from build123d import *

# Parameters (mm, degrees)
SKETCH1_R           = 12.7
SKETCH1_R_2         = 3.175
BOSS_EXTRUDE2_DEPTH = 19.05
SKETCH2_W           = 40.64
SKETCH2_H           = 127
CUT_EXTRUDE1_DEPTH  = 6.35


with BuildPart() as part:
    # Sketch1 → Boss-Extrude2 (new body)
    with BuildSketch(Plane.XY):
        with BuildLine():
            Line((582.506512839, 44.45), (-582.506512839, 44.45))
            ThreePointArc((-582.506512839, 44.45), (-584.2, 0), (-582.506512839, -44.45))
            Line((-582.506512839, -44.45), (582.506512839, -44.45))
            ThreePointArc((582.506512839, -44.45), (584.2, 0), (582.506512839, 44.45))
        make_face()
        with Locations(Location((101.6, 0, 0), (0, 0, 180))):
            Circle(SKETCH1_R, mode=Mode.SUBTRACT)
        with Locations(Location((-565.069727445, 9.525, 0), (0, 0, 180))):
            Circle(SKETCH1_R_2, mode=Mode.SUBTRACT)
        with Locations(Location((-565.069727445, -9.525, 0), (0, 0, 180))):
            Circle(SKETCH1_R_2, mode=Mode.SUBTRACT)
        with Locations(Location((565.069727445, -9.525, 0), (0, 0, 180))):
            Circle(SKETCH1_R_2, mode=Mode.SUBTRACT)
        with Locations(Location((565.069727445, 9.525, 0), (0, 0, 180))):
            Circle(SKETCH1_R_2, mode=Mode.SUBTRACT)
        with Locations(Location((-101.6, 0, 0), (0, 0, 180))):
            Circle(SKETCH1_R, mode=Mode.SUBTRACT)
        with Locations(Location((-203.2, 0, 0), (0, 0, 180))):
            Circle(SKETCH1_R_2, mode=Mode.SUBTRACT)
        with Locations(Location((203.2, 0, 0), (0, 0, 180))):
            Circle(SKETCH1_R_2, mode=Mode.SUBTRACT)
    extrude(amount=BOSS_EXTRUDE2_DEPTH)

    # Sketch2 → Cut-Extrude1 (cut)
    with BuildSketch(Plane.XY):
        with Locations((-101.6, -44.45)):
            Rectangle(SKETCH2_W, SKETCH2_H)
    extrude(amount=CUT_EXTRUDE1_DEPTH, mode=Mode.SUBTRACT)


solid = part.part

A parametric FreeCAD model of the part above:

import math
import FreeCAD as App
import Part
import Sketcher
from FreeCAD import Vector
Q = App.Units.Quantity

doc = App.newDocument("Part")
body = doc.addObject("PartDesign::Body", "Body")

# Sketch on XY plane
sketch1 = body.newObject("Sketcher::SketchObject", "Sketch")
sketch1.AttachmentSupport = (doc.getObject("XY_Plane"), [""])
sketch1.MapMode = "FlatFace"
sketch1.addGeometry([
    Part.LineSegment(Vector(582.5, 44.5, 0), Vector(-582.5, 44.5, 0)),  # 0
    Part.ArcOfCircle(Part.Circle(Vector(0, 0, 0), Vector(0, 0, 1), 584.2), math.radians(175.64), math.radians(184.36)),  # 1
    Part.LineSegment(Vector(-582.5, -44.5, 0), Vector(582.5, -44.5, 0)),  # 2
    Part.ArcOfCircle(Part.Circle(Vector(0, 0, 0), Vector(0, 0, 1), 584.2), math.radians(-4.36), math.radians(4.36)),  # 3
    Part.Circle(Vector(-565.1, -9.5, 0), Vector(0, 0, 1), 3.2),  # 4
    Part.Circle(Vector(565.1, -9.5, 0), Vector(0, 0, 1), 3.2),  # 5
    Part.Circle(Vector(-203.2, 0, 0), Vector(0, 0, 1), 3.2),  # 6
    Part.Circle(Vector(-101.6, 0, 0), Vector(0, 0, 1), 12.7),  # 7
    Part.Circle(Vector(-565.1, 9.5, 0), Vector(0, 0, 1), 3.2),  # 8
    Part.Circle(Vector(101.6, 0, 0), Vector(0, 0, 1), 12.7),  # 9
    Part.Circle(Vector(203.2, 0, 0), Vector(0, 0, 1), 3.2),  # 10
    Part.Circle(Vector(565.1, 9.5, 0), Vector(0, 0, 1), 3.2),  # 11
], False)
sketch1.addConstraint([
    Sketcher.Constraint("Coincident", 0, 2, 1, 1),
    Sketcher.Constraint("Coincident", 1, 2, 2, 1),
    Sketcher.Constraint("Coincident", 2, 2, 3, 1),
    Sketcher.Constraint("Coincident", 3, 2, 0, 1),
    Sketcher.Constraint("Horizontal", 0),
    Sketcher.Constraint("Horizontal", 2),
    Sketcher.Constraint("Coincident", 1, 3, -1, 1),
    Sketcher.Constraint("Coincident", 3, 3, -1, 1),
    Sketcher.Constraint("Equal", 1, 3),
    Sketcher.Constraint("Equal", 4, 5),
    Sketcher.Constraint("Equal", 5, 6),
    Sketcher.Constraint("Equal", 6, 8),
    Sketcher.Constraint("Equal", 7, 9),
    Sketcher.Constraint("Equal", 8, 10),
    Sketcher.Constraint("Equal", 10, 11),
    Sketcher.Constraint("Symmetric", 5, 3, 8, 3, -1, 1),
    Sketcher.Constraint("Symmetric", 7, 3, 9, 3, -1, 1),
    Sketcher.Constraint("Symmetric", 6, 3, 10, 3, -1, 1),
    Sketcher.Constraint("Symmetric", 4, 3, 11, 3, -1, 1),
    Sketcher.Constraint("Symmetric", 4, 3, 5, 3, -2),
    Sketcher.Constraint("PointOnObject", 6, 3, -1),
    Sketcher.Constraint("PointOnObject", 7, 3, -1),
    Sketcher.Constraint("Equal", 0, 2),
    Sketcher.Constraint("Diameter", 7, Q("1 in")),
    Sketcher.Constraint("Radius", 1, Q("23 in")),
    Sketcher.Constraint("Diameter", 4, Q("0.25 in")),
    Sketcher.Constraint("DistanceX", 6, 3, -1, 1, Q("8 in")),
    Sketcher.Constraint("DistanceX", 7, 3, -1, 1, Q("4 in")),
    Sketcher.Constraint("DistanceY", -1, 1, 0, 2, Q("1.75 in")),
    Sketcher.Constraint("DistanceY", 4, 3, 8, 3, Q("0.75 in")),
    Sketcher.Constraint("DistanceX", 4, 3, -1, 1, Q("565.069727 mm")),
])
pad1 = body.newObject("PartDesign::Pad", "Pad")
pad1.Profile = sketch1
pad1.Length = Q("0.75 in")

# Sketch on XY plane
sketch2 = body.newObject("Sketcher::SketchObject", "Sketch001")
sketch2.AttachmentSupport = (doc.getObject("XY_Plane"), [""])
sketch2.MapMode = "FlatFace"
sketch2.addGeometry([
    Part.LineSegment(Vector(-122, 19, 0), Vector(-122, -108, 0)),
    Part.LineSegment(Vector(-122, -108, 0), Vector(-81, -108, 0)),
    Part.LineSegment(Vector(-81, -108, 0), Vector(-81, 19, 0)),
    Part.LineSegment(Vector(-81, 19, 0), Vector(-122, 19, 0)),
], False)
sketch2.addConstraint([
    Sketcher.Constraint("Coincident", 0, 2, 1, 1),
    Sketcher.Constraint("Coincident", 1, 2, 2, 1),
    Sketcher.Constraint("Coincident", 2, 2, 3, 1),
    Sketcher.Constraint("Coincident", 3, 2, 0, 1),
    Sketcher.Constraint("Vertical", 0),
    Sketcher.Constraint("Horizontal", 1),
    Sketcher.Constraint("Vertical", 2),
    Sketcher.Constraint("Horizontal", 3),
    Sketcher.Constraint("DistanceY", 0, 2, 0, 1, Q("5 in")),
    Sketcher.Constraint("DistanceX", 1, 1, 1, 2, Q("1.6 in")),
    Sketcher.Constraint("DistanceX", 0, 2, -1, 1, Q("4.8 in")),
    Sketcher.Constraint("DistanceY", 0, 2, -1, 1, Q("4.25 in")),
])
pocket1 = body.newObject("PartDesign::Pocket", "Pocket")
pocket1.Profile = sketch2
pocket1.Length = Q("0.25 in")
pocket1.Reversed = True

doc.recompute()
